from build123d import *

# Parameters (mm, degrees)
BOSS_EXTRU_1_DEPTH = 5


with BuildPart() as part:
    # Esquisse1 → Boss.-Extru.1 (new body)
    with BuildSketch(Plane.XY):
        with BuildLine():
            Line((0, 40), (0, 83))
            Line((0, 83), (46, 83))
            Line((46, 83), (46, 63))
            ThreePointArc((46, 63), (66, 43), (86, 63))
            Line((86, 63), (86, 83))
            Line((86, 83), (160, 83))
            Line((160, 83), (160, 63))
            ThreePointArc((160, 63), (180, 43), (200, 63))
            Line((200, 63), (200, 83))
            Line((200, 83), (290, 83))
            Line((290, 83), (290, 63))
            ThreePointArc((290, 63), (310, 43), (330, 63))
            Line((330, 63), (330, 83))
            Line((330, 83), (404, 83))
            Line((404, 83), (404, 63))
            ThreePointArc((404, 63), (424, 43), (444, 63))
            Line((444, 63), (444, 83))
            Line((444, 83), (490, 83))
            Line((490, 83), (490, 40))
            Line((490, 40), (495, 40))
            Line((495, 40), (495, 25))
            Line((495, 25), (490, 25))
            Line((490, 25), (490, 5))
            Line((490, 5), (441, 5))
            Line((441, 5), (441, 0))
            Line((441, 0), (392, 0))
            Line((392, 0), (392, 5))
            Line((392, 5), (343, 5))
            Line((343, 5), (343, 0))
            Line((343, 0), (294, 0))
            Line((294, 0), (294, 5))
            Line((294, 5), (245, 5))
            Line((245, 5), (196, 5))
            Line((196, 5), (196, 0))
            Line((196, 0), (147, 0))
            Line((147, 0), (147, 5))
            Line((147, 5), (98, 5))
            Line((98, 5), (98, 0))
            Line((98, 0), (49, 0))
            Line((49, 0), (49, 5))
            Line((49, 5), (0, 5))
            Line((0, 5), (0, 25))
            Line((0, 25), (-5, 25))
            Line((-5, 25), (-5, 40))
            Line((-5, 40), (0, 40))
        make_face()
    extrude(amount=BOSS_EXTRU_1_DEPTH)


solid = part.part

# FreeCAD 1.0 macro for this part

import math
import FreeCAD as App
import Part
import Sketcher
Q = App.Units.Quantity

doc = App.newDocument("Part")
body = doc.addObject("PartDesign::Body", "Body")

# Sketch on XY plane
sketch1 = body.newObject("Sketcher::SketchObject", "Sketch")
sketch1.AttachmentSupport = (doc.getObject("XY_Plane"), [""])
sketch1.MapMode = "FlatFace"
sketch1.addGeometry([
    Part.LineSegment(App.Vector(0, 83, 0), App.Vector(0, 40, 0)),  # 0
    Part.LineSegment(App.Vector(0, 40, 0), App.Vector(-5, 40, 0)),  # 1
    Part.LineSegment(App.Vector(-5, 40, 0), App.Vector(-5, 25, 0)),  # 2
    Part.LineSegment(App.Vector(-5, 25, 0), App.Vector(0, 25, 0)),  # 3
    Part.LineSegment(App.Vector(0, 25, 0), App.Vector(0, 5, 0)),  # 4
    Part.LineSegment(App.Vector(0, 5, 0), App.Vector(49, 5, 0)),  # 5
    Part.LineSegment(App.Vector(49, 5, 0), App.Vector(49, 0, 0)),  # 6
    Part.LineSegment(App.Vector(49, 0, 0), App.Vector(98, 0, 0)),  # 7
    Part.LineSegment(App.Vector(98, 0, 0), App.Vector(98, 5, 0)),  # 8
    Part.LineSegment(App.Vector(98, 5, 0), App.Vector(147, 5, 0)),  # 9
    Part.LineSegment(App.Vector(147, 5, 0), App.Vector(147, 0, 0)),  # 10
    Part.LineSegment(App.Vector(147, 0, 0), App.Vector(196, 0, 0)),  # 11
    Part.LineSegment(App.Vector(196, 0, 0), App.Vector(196, 5, 0)),  # 12
    Part.LineSegment(App.Vector(196, 5, 0), App.Vector(294, 5, 0)),  # 13
    Part.LineSegment(App.Vector(294, 5, 0), App.Vector(294, 0, 0)),  # 14
    Part.LineSegment(App.Vector(294, 0, 0), App.Vector(343, 0, 0)),  # 15
    Part.LineSegment(App.Vector(343, 0, 0), App.Vector(343, 5, 0)),  # 16
    Part.LineSegment(App.Vector(343, 5, 0), App.Vector(392, 5, 0)),  # 17
    Part.LineSegment(App.Vector(392, 5, 0), App.Vector(392, 0, 0)),  # 18
    Part.LineSegment(App.Vector(392, 0, 0), App.Vector(441, 0, 0)),  # 19
    Part.LineSegment(App.Vector(441, 0, 0), App.Vector(441, 5, 0)),  # 20
    Part.LineSegment(App.Vector(441, 5, 0), App.Vector(490, 5, 0)),  # 21
    Part.LineSegment(App.Vector(490, 5, 0), App.Vector(490, 25, 0)),  # 22
    Part.LineSegment(App.Vector(490, 25, 0), App.Vector(495, 25, 0)),  # 23
    Part.LineSegment(App.Vector(495, 25, 0), App.Vector(495, 40, 0)),  # 24
    Part.LineSegment(App.Vector(495, 40, 0), App.Vector(490, 40, 0)),  # 25
    Part.LineSegment(App.Vector(490, 40, 0), App.Vector(490, 83, 0)),  # 26
    Part.LineSegment(App.Vector(490, 83, 0), App.Vector(444, 83, 0)),  # 27
    Part.LineSegment(App.Vector(444, 83, 0), App.Vector(444, 63, 0)),  # 28
    Part.ArcOfCircle(Part.Circle(App.Vector(424, 63, 0), App.Vector(0, 0, 1), 20), math.radians(180), math.radians(360)),  # 29
    Part.LineSegment(App.Vector(404, 63, 0), App.Vector(404, 83, 0)),  # 30
    Part.LineSegment(App.Vector(404, 83, 0), App.Vector(330, 83, 0)),  # 31
    Part.LineSegment(App.Vector(330, 83, 0), App.Vector(330, 63, 0)),  # 32
    Part.ArcOfCircle(Part.Circle(App.Vector(310, 63, 0), App.Vector(0, 0, 1), 20), math.radians(180), math.radians(360)),  # 33
    Part.LineSegment(App.Vector(290, 63, 0), App.Vector(290, 83, 0)),  # 34
    Part.LineSegment(App.Vector(290, 83, 0), App.Vector(200, 83, 0)),  # 35
    Part.LineSegment(App.Vector(200, 83, 0), App.Vector(200, 63, 0)),  # 36
    Part.ArcOfCircle(Part.Circle(App.Vector(180, 63, 0), App.Vector(0, 0, 1), 20), math.radians(180), math.radians(360)),  # 37
    Part.LineSegment(App.Vector(160, 63, 0), App.Vector(160, 83, 0)),  # 38
    Part.LineSegment(App.Vector(160, 83, 0), App.Vector(86, 83, 0)),  # 39
    Part.LineSegment(App.Vector(86, 83, 0), App.Vector(86, 63, 0)),  # 40
    Part.ArcOfCircle(Part.Circle(App.Vector(66, 63, 0), App.Vector(0, 0, 1), 20), math.radians(180), math.radians(360)),  # 41
    Part.LineSegment(App.Vector(46, 63, 0), App.Vector(46, 83, 0)),  # 42
    Part.LineSegment(App.Vector(46, 83, 0), App.Vector(0, 83, 0)),  # 43
], False)
sketch1.addConstraint([
    Sketcher.Constraint("Coincident", 0, 2, 1, 1),
    Sketcher.Constraint("Coincident", 1, 2, 2, 1),
    Sketcher.Constraint("Coincident", 2, 2, 3, 1),
    Sketcher.Constraint("Coincident", 3, 2, 4, 1),
    Sketcher.Constraint("Coincident", 4, 2, 5, 1),
    Sketcher.Constraint("Coincident", 5, 2, 6, 1),
    Sketcher.Constraint("Coincident", 6, 2, 7, 1),
    Sketcher.Constraint("Coincident", 7, 2, 8, 1),
    Sketcher.Constraint("Coincident", 8, 2, 9, 1),
    Sketcher.Constraint("Coincident", 9, 2, 10, 1),
    Sketcher.Constraint("Coincident", 10, 2, 11, 1),
    Sketcher.Constraint("Coincident", 11, 2, 12, 1),
    Sketcher.Constraint("Coincident", 12, 2, 13, 1),
    Sketcher.Constraint("Coincident", 13, 2, 14, 1),
    Sketcher.Constraint("Coincident", 14, 2, 15, 1),
    Sketcher.Constraint("Coincident", 15, 2, 16, 1),
    Sketcher.Constraint("Coincident", 16, 2, 17, 1),
    Sketcher.Constraint("Coincident", 17, 2, 18, 1),
    Sketcher.Constraint("Coincident", 18, 2, 19, 1),
    Sketcher.Constraint("Coincident", 19, 2, 20, 1),
    Sketcher.Constraint("Coincident", 20, 2, 21, 1),
    Sketcher.Constraint("Coincident", 21, 2, 22, 1),
    Sketcher.Constraint("Coincident", 22, 2, 23, 1),
    Sketcher.Constraint("Coincident", 23, 2, 24, 1),
    Sketcher.Constraint("Coincident", 24, 2, 25, 1),
    Sketcher.Constraint("Coincident", 25, 2, 26, 1),
    Sketcher.Constraint("Coincident", 26, 2, 27, 1),
    Sketcher.Constraint("Coincident", 27, 2, 28, 1),
    Sketcher.Constraint("Tangent", 28, 2, 29, 2),
    Sketcher.Constraint("Tangent", 29, 1, 30, 1),
    Sketcher.Constraint("Coincident", 30, 2, 31, 1),
    Sketcher.Constraint("Coincident", 31, 2, 32, 1),
    Sketcher.Constraint("Tangent", 32, 2, 33, 2),
    Sketcher.Constraint("Tangent", 33, 1, 34, 1),
    Sketcher.Constraint("Coincident", 34, 2, 35, 1),
    Sketcher.Constraint("Coincident", 35, 2, 36, 1),
    Sketcher.Constraint("Tangent", 36, 2, 37, 2),
    Sketcher.Constraint("Tangent", 37, 1, 38, 1),
    Sketcher.Constraint("Coincident", 38, 2, 39, 1),
    Sketcher.Constraint("Coincident", 39, 2, 40, 1),
    Sketcher.Constraint("Tangent", 40, 2, 41, 2),
    Sketcher.Constraint("Tangent", 41, 1, 42, 1),
    Sketcher.Constraint("Coincident", 42, 2, 43, 1),
    Sketcher.Constraint("Coincident", 43, 2, 0, 1),
    Sketcher.Constraint("Vertical", 0),
    Sketcher.Constraint("Horizontal", 1),
    Sketcher.Constraint("Vertical", 2),
    Sketcher.Constraint("Horizontal", 3),
    Sketcher.Constraint("Vertical", 4),
    Sketcher.Constraint("Horizontal", 5),
    Sketcher.Constraint("Vertical", 6),
    Sketcher.Constraint("Horizontal", 7),
    Sketcher.Constraint("Vertical", 8),
    Sketcher.Constraint("Horizontal", 9),
    Sketcher.Constraint("Vertical", 10),
    Sketcher.Constraint("Horizontal", 11),
    Sketcher.Constraint("Vertical", 12),
    Sketcher.Constraint("Horizontal", 13),
    Sketcher.Constraint("Vertical", 14),
    Sketcher.Constraint("Horizontal", 15),
    Sketcher.Constraint("Vertical", 16),
    Sketcher.Constraint("Horizontal", 17),
    Sketcher.Constraint("Vertical", 18),
    Sketcher.Constraint("Horizontal", 19),
    Sketcher.Constraint("Vertical", 20),
    Sketcher.Constraint("Horizontal", 21),
    Sketcher.Constraint("Vertical", 22),
    Sketcher.Constraint("Horizontal", 23),
    Sketcher.Constraint("Vertical", 24),
    Sketcher.Constraint("Horizontal", 25),
    Sketcher.Constraint("Vertical", 26),
    Sketcher.Constraint("Horizontal", 27),
    Sketcher.Constraint("Vertical", 28),
    Sketcher.Constraint("Vertical", 30),
    Sketcher.Constraint("Horizontal", 31),
    Sketcher.Constraint("Vertical", 32),
    Sketcher.Constraint("Vertical", 34),
    Sketcher.Constraint("Horizontal", 35),
    Sketcher.Constraint("Vertical", 36),
    Sketcher.Constraint("Vertical", 38),
    Sketcher.Constraint("Horizontal", 39),
    Sketcher.Constraint("Vertical", 40),
    Sketcher.Constraint("Vertical", 42),
    Sketcher.Constraint("Horizontal", 43),
    Sketcher.Constraint("Equal", 29, 33),
    Sketcher.Constraint("Equal", 33, 37),
    Sketcher.Constraint("Equal", 37, 41),
    Sketcher.Constraint("PointOnObject", 0, 2, -2),
    Sketcher.Constraint("PointOnObject", 3, 2, -2),
    Sketcher.Constraint("PointOnObject", 6, 2, -1),
    Sketcher.Constraint("PointOnObject", 10, 2, -1),
    Sketcher.Constraint("PointOnObject", 14, 2, -1),
    Sketcher.Constraint("PointOnObject", 18, 2, -1),
    Sketcher.Constraint("Horizontal", 29, 3, 33, 3),
    Sketcher.Constraint("Horizontal", 33, 3, 37, 3),
    Sketcher.Constraint("Horizontal", 37, 3, 41, 3),
    Sketcher.Constraint("Horizontal", 5, 2, 8, 2),
    Sketcher.Constraint("Horizontal", 9, 2, 12, 2),
    Sketcher.Constraint("Horizontal", 13, 2, 16, 2),
    Sketcher.Constraint("Horizontal", 17, 2, 20, 2),
    Sketcher.Constraint("Horizontal", 3, 2, 22, 2),
    Sketcher.Constraint("Horizontal", 1, 2, 24, 2),
    Sketcher.Constraint("Horizontal", 27, 2, 30, 2),
    Sketcher.Constraint("Horizontal", 31, 2, 34, 2),
    Sketcher.Constraint("Horizontal", 35, 2, 38, 2),
    Sketcher.Constraint("Horizontal", 39, 2, 42, 2),
    Sketcher.Constraint("Vertical", 22, 2, 25, 2),
    Sketcher.Constraint("Equal", 5, 7),
    Sketcher.Constraint("Equal", 7, 9),
    Sketcher.Constraint("Equal", 9, 11),
    Sketcher.Constraint("Equal", 11, 15),
    Sketcher.Constraint("Equal", 15, 17),
    Sketcher.Constraint("Equal", 17, 19),
    Sketcher.Constraint("Equal", 19, 21),
    Sketcher.Constraint("Equal", 3, 23),
    Sketcher.Constraint("Equal", 31, 39),
    Sketcher.Constraint("Equal", 27, 43),
    Sketcher.Constraint("Equal", 25, 6),
    Sketcher.Constraint("Equal", 22, 28),
    Sketcher.Constraint("Radius", 29, Q("20 mm")),
    Sketcher.Constraint("DistanceX", 1, 2, 1, 1, Q("5 mm")),
    Sketcher.Constraint("DistanceX", 5, 1, 5, 2, Q("49 mm")),
    Sketcher.Constraint("DistanceX", 13, 1, 13, 2, Q("98 mm")),
    Sketcher.Constraint("DistanceX", 27, 2, 27, 1, Q("46 mm")),
    Sketcher.Constraint("DistanceX", 31, 2, 31, 1, Q("74 mm")),
    Sketcher.Constraint("DistanceY", 0, 2, 0, 1, Q("43 mm")),
    Sketcher.Constraint("DistanceY", 2, 2, 2, 1, Q("15 mm")),
    Sketcher.Constraint("DistanceY", 4, 2, 4, 1, Q("20 mm")),
])
pad1 = body.newObject("PartDesign::Pad", "Pad")
pad1.Profile = sketch1
pad1.Length = 5

doc.recompute()
